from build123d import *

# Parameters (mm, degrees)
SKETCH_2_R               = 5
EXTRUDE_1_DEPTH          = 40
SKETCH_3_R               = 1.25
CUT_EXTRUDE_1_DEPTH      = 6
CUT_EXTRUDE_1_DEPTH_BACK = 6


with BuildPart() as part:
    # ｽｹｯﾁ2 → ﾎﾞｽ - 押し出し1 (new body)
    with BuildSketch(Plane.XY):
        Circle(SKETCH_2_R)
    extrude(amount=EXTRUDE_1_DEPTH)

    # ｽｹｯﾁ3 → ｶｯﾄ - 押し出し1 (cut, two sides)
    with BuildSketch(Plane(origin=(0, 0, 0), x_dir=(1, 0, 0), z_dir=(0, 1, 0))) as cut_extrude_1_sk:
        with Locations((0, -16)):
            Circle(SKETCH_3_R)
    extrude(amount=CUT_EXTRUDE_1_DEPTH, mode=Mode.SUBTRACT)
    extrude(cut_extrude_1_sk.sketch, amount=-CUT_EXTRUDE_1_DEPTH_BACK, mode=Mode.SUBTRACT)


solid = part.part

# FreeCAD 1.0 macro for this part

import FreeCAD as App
import Part
import Sketcher

V = App.Vector
Q = App.Units.Quantity

doc = App.newDocument("Part")
params = doc.addObject("Spreadsheet::Sheet", "Params")
for row, (alias, value) in enumerate([
    ("sketch1_diameter", "10 mm"),
    ("pad1_length", "40 mm"),
    ("sketch2_diameter", "2.5 mm"),
], start=1):
    params.set(f"A{row}", alias)
    params.set(f"B{row}", "=" + value)
    params.setAlias(f"B{row}", alias)

body = doc.addObject("PartDesign::Body", "Body")

# Sketch on XY plane
sketch1 = body.newObject("Sketcher::SketchObject", "Sketch")
sketch1.AttachmentSupport = (doc.getObject("XY_Plane"), [""])
sketch1.MapMode = "FlatFace"
sketch1.addGeometry(Part.Circle(V(0, 0, 0), V(0, 0, 1), 5), False)
sketch1.addConstraint([
    Sketcher.Constraint("Coincident", 0, 3, -1, 1),
    Sketcher.Constraint("Diameter", 0, Q("10 mm")),
])
sketch1.setExpression("Constraints[1]", "Params.sketch1_diameter")
pad1 = body.newObject("PartDesign::Pad", "Pad")
pad1.Profile = sketch1
pad1.setExpression("Length", "Params.pad1_length")

# Sketch on XZ plane
sketch2 = body.newObject("Sketcher::SketchObject", "Sketch001")
sketch2.AttachmentSupport = (doc.getObject("XZ_Plane"), [""])
sketch2.MapMode = "FlatFace"
sketch2.addGeometry(Part.Circle(V(0, 16, 0), V(0, 0, 1), 1.2), False)
sketch2.addConstraint([
    Sketcher.Constraint("PointOnObject", 0, 3, -2),
    Sketcher.Constraint("Diameter", 0, Q("2.5 mm")),
    Sketcher.Constraint("DistanceY", -1, 1, 0, 3, Q("16 mm")),
])
sketch2.setExpression("Constraints[1]", "Params.sketch2_diameter")
pocket1 = body.newObject("PartDesign::Pocket", "Pocket")
pocket1.Profile = sketch2
pocket1.Type = "ThroughAll"
pocket1.Midplane = True

doc.recompute()
